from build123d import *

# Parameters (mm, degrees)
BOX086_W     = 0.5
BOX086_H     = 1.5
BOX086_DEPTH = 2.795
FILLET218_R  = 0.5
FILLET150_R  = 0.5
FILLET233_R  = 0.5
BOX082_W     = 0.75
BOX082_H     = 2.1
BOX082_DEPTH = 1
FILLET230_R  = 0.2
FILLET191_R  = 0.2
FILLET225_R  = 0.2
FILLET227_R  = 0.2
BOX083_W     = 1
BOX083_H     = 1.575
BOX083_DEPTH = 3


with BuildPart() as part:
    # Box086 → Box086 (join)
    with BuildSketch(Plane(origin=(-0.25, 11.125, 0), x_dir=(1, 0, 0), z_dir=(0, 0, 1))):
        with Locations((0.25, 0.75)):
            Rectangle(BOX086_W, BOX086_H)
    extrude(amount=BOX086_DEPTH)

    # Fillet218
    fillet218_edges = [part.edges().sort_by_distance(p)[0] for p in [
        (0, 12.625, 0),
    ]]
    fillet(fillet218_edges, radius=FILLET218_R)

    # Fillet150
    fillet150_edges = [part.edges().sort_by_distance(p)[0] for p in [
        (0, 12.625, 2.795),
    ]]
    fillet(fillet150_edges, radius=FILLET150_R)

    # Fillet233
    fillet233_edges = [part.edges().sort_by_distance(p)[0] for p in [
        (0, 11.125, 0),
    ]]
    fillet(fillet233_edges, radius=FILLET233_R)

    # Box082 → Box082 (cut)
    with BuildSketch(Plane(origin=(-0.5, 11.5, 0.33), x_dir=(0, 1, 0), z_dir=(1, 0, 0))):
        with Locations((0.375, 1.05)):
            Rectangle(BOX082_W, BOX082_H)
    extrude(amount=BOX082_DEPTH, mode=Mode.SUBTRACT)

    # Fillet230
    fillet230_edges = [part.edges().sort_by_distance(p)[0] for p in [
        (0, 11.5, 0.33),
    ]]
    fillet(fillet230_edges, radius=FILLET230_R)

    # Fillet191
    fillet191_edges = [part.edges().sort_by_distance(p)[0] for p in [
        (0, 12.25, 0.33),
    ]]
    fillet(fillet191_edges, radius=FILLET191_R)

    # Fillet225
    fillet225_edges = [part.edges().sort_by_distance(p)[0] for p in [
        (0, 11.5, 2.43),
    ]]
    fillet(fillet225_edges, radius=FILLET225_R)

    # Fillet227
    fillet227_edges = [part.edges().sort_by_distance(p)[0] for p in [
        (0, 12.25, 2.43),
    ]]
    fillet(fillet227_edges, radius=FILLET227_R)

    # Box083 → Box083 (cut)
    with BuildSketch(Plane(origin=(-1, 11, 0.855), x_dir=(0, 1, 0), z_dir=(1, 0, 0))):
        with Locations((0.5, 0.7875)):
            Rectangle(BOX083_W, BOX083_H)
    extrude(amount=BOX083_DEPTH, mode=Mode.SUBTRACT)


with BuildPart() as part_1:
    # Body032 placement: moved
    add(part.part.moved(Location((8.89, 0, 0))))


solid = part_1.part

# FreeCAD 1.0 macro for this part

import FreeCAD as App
import Part
import Sketcher
from FreeCAD import Vector


def edges_at(feature, points):
    """Names of the edges that pass closest to the given points."""
    edges = feature.Shape.Edges
    near = lambda p: min(range(len(edges)), key=lambda i: edges[i].distToShape(Part.Vertex(*p))[0])
    return sorted({f"Edge{near(p) + 1}" for p in points})

doc = App.newDocument("Part")
body = doc.addObject("PartDesign::Body", "Body")

# Sketch on XY plane
sketch1 = body.newObject("Sketcher::SketchObject", "Sketch")
sketch1.AttachmentSupport = (doc.getObject("XY_Plane"), [""])
sketch1.MapMode = "FlatFace"
sketch1.addGeometry([
    Part.LineSegment(Vector(-0.25, 12.625, 0), Vector(-0.25, 11.125, 0)),
    Part.LineSegment(Vector(-0.25, 11.125, 0), Vector(0.25, 11.125, 0)),
    Part.LineSegment(Vector(0.25, 11.125, 0), Vector(0.25, 12.625, 0)),
    Part.LineSegment(Vector(0.25, 12.625, 0), Vector(-0.25, 12.625, 0)),
], False)
sketch1.addConstraint([
    Sketcher.Constraint("Coincident", 0, 2, 1, 1),
    Sketcher.Constraint("Coincident", 1, 2, 2, 1),
    Sketcher.Constraint("Coincident", 2, 2, 3, 1),
    Sketcher.Constraint("Coincident", 3, 2, 0, 1),
    Sketcher.Constraint("Vertical", 0),
    Sketcher.Constraint("Horizontal", 1),
    Sketcher.Constraint("Vertical", 2),
    Sketcher.Constraint("Horizontal", 3),
    Sketcher.Constraint("DistanceX", 1, 1, 1, 2, 0.5),
    Sketcher.Constraint("DistanceY", 0, 2, 0, 1, 1.5),
    Sketcher.Constraint("DistanceX", 0, 2, -1, 1, 0.25),
    Sketcher.Constraint("DistanceY", -1, 1, 0, 2, 11.125),
])
pad1 = body.newObject("PartDesign::Pad", "Pad")
pad1.Profile = sketch1
pad1.Length = 2.795
doc.recompute()

fillet = body.newObject("PartDesign::Fillet", "Fillet")
fillet.Base = (pad1, edges_at(pad1, [(0, 12.625, 0)]))
fillet.Radius = 0.5
doc.recompute()

fillet2 = body.newObject("PartDesign::Fillet", "Fillet001")
fillet2.Base = (fillet, edges_at(fillet, [(0, 12.625, 2.795)]))
fillet2.Radius = 0.5
doc.recompute()

fillet3 = body.newObject("PartDesign::Fillet", "Fillet002")
fillet3.Base = (fillet2, edges_at(fillet2, [(0, 11.125, 0)]))
fillet3.Radius = 0.5

# Sketch on YZ plane
sketch2 = body.newObject("Sketcher::SketchObject", "Sketch001")
sketch2.AttachmentSupport = (doc.getObject("YZ_Plane"), [""])
sketch2.MapMode = "FlatFace"
sketch2.AttachmentOffset = App.Placement(Vector(0, 0, -0.5), App.Rotation())
sketch2.addGeometry([
    Part.LineSegment(Vector(11.5, 2.43, 0), Vector(11.5, 0.33, 0)),
    Part.LineSegment(Vector(11.5, 0.33, 0), Vector(12.25, 0.33, 0)),
    Part.LineSegment(Vector(12.25, 0.33, 0), Vector(12.25, 2.43, 0)),
    Part.LineSegment(Vector(12.25, 2.43, 0), Vector(11.5, 2.43, 0)),
], False)
sketch2.addConstraint([
    Sketcher.Constraint("Coincident", 0, 2, 1, 1),
    Sketcher.Constraint("Coincident", 1, 2, 2, 1),
    Sketcher.Constraint("Coincident", 2, 2, 3, 1),
    Sketcher.Constraint("Coincident", 3, 2, 0, 1),
    Sketcher.Constraint("Vertical", 0),
    Sketcher.Constraint("Horizontal", 1),
    Sketcher.Constraint("Vertical", 2),
    Sketcher.Constraint("Horizontal", 3),
    Sketcher.Constraint("DistanceY", 0, 2, 0, 1, 2.1),
    Sketcher.Constraint("DistanceX", 1, 1, 1, 2, 0.75),
    Sketcher.Constraint("DistanceX", -1, 1, 0, 2, 11.5),
    Sketcher.Constraint("DistanceY", -1, 1, 0, 2, 0.33),
])
pocket1 = body.newObject("PartDesign::Pocket", "Pocket")
pocket1.Profile = sketch2
pocket1.Length = 1
pocket1.Reversed = True
doc.recompute()

fillet4 = body.newObject("PartDesign::Fillet", "Fillet003")
fillet4.Base = (pocket1, edges_at(pocket1, [(0, 11.5, 0.33)]))
fillet4.Radius = 0.2
doc.recompute()

fillet5 = body.newObject("PartDesign::Fillet", "Fillet004")
fillet5.Base = (fillet4, edges_at(fillet4, [(0, 12.25, 0.33)]))
fillet5.Radius = 0.2
doc.recompute()

fillet6 = body.newObject("PartDesign::Fillet", "Fillet005")
fillet6.Base = (fillet5, edges_at(fillet5, [(0, 11.5, 2.43)]))
fillet6.Radius = 0.2
doc.recompute()

fillet7 = body.newObject("PartDesign::Fillet", "Fillet006")
fillet7.Base = (fillet6, edges_at(fillet6, [(0, 12.25, 2.43)]))
fillet7.Radius = 0.2

# Sketch on YZ plane
sketch3 = body.newObject("Sketcher::SketchObject", "Sketch002")
sketch3.AttachmentSupport = (doc.getObject("YZ_Plane"), [""])
sketch3.MapMode = "FlatFace"
sketch3.AttachmentOffset = App.Placement(Vector(0, 0, -1), App.Rotation())
sketch3.addGeometry([
    Part.LineSegment(Vector(11, 2.43, 0), Vector(11, 0.855, 0)),
    Part.LineSegment(Vector(11, 0.855, 0), Vector(12, 0.855, 0)),
    Part.LineSegment(Vector(12, 0.855, 0), Vector(12, 2.43, 0)),
    Part.LineSegment(Vector(12, 2.43, 0), Vector(11, 2.43, 0)),
], False)
sketch3.addConstraint([
    Sketcher.Constraint("Coincident", 0, 2, 1, 1),
    Sketcher.Constraint("Coincident", 1, 2, 2, 1),
    Sketcher.Constraint("Coincident", 2, 2, 3, 1),
    Sketcher.Constraint("Coincident", 3, 2, 0, 1),
    Sketcher.Constraint("Vertical", 0),
    Sketcher.Constraint("Horizontal", 1),
    Sketcher.Constraint("Vertical", 2),
    Sketcher.Constraint("Horizontal", 3),
    Sketcher.Constraint("DistanceX", 1, 1, 1, 2, 1.0),
    Sketcher.Constraint("DistanceX", -1, 1, 0, 2, 11.0),
    Sketcher.Constraint("DistanceY", 0, 2, 0, 1, 1.575),
    Sketcher.Constraint("DistanceY", -1, 1, 2, 2, 2.43),
])
pocket2 = body.newObject("PartDesign::Pocket", "Pocket001")
pocket2.Profile = sketch3
pocket2.Length = 3
pocket2.Reversed = True
body2 = doc.addObject("PartDesign::Body", "Body001")
doc.recompute()

body.Placement = App.Placement(Vector(8.89, 0, 0), App.Rotation(Vector(0, 0, 1), 0))
boolean = body2.newObject("PartDesign::Boolean", "Boolean")
boolean.Type = "Fuse"
boolean.addObjects([body])

doc.recompute()
